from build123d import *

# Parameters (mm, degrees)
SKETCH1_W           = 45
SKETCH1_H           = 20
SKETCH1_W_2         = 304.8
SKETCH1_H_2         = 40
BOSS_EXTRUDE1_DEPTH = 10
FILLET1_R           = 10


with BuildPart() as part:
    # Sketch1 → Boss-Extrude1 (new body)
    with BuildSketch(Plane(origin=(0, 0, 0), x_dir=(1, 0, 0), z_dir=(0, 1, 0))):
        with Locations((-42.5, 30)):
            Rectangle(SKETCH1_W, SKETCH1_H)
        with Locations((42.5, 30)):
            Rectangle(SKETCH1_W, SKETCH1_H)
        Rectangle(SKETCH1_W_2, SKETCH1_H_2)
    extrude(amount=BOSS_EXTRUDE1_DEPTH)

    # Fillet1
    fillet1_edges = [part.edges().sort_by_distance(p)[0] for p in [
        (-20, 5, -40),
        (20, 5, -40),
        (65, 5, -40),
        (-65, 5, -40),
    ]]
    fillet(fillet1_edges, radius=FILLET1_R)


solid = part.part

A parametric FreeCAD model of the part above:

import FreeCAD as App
import Part
import Sketcher
from FreeCAD import Vector


def edges_at(feature, points):
    """Names of the edges that pass closest to the given points."""
    edges = feature.Shape.Edges
    near = lambda p: min(range(len(edges)), key=lambda i: edges[i].distToShape(Part.Vertex(*p))[0])
    return sorted({f"Edge{near(p) + 1}" for p in points})


def add_polygon(sketch, points):
    """Adds a closed chain of lines whose ends are joined by coincident constraints."""
    first, n = sketch.GeometryCount, len(points)
    for a, b in zip(points, points[1:] + points[:1]):
        sketch.addGeometry(Part.LineSegment(App.Vector(*a, 0), App.Vector(*b, 0)), False)
    for i in range(n):
        sketch.addConstraint(Sketcher.Constraint("Coincident", first + i, 2, first + (i + 1) % n, 1))

doc = App.newDocument("Part")
params = doc.addObject("Spreadsheet::Sheet", "Params")
for row, (alias, value) in enumerate([
    ("sketch1_width", "45 mm"),
    ("sketch1_width2", "40 mm"),
    ("sketch1_height", "20 mm"),
    ("sketch1_width3", "87.4 mm"),
    ("pad1_length", "10 mm"),
    ("fillet_radius", "10 mm"),
], start=1):
    params.set(f"A{row}", alias)
    params.set(f"B{row}", "=" + value)
    params.setAlias(f"B{row}", alias)

body = doc.addObject("PartDesign::Body", "Body")

# Sketch on XZ plane
sketch1 = body.newObject("Sketcher::SketchObject", "Sketch")
sketch1.AttachmentSupport = (doc.getObject("XZ_Plane"), [""])
sketch1.MapMode = "FlatFace"
add_polygon(sketch1, [(-65, -40), (-65, -20), (-152, -20), (-152, 20), (152, 20), (152, -20), (65, -20), (65, -40), (20, -40), (20, -20), (-20, -20), (-20, -40)])  # lines 0-11
sketch1.addConstraint(Sketcher.Constraint("Vertical", 0))
sketch1.addConstraint(Sketcher.Constraint("Horizontal", 1))
sketch1.addConstraint(Sketcher.Constraint("Vertical", 2))
sketch1.addConstraint(Sketcher.Constraint("Horizontal", 3))
sketch1.addConstraint(Sketcher.Constraint("Vertical", 4))
sketch1.addConstraint(Sketcher.Constraint("Horizontal", 5))
sketch1.addConstraint(Sketcher.Constraint("Vertical", 6))
sketch1.addConstraint(Sketcher.Constraint("Horizontal", 7))
sketch1.addConstraint(Sketcher.Constraint("Vertical", 8))
sketch1.addConstraint(Sketcher.Constraint("Horizontal", 9))
sketch1.addConstraint(Sketcher.Constraint("Vertical", 10))
sketch1.addConstraint(Sketcher.Constraint("Horizontal", 11))
sketch1.addConstraint(Sketcher.Constraint("Symmetric", 1, 2, 3, 2, -1, 1))
sketch1.addConstraint(Sketcher.Constraint("Symmetric", 0, 2, 5, 2, -2))
sketch1.addConstraint(Sketcher.Constraint("Symmetric", 7, 2, 10, 2, -2))
sketch1.addConstraint(Sketcher.Constraint("Horizontal", 5, 2, 8, 2))
sketch1.addConstraint(Sketcher.Constraint("Equal", 9, 2))
sketch1.addConstraint(Sketcher.Constraint("DistanceX", 7, 2, 7, 1, 45.0))
sketch1.addConstraint(Sketcher.Constraint("DistanceX", 9, 2, 9, 1, 40.0))
sketch1.addConstraint(Sketcher.Constraint("DistanceY", 0, 1, 0, 2, 20.0))
sketch1.addConstraint(Sketcher.Constraint("DistanceX", 1, 2, 1, 1, 87.4))
sketch1.setExpression("Constraints[29]", "Params.sketch1_width")
sketch1.setExpression("Constraints[30]", "Params.sketch1_width2")
sketch1.setExpression("Constraints[31]", "Params.sketch1_height")
sketch1.setExpression("Constraints[32]", "Params.sketch1_width3")
pad1 = body.newObject("PartDesign::Pad", "Pad")
pad1.Profile = sketch1
pad1.setExpression("Length", "Params.pad1_length")
pad1.Reversed = True
doc.recompute()

fillet = body.newObject("PartDesign::Fillet", "Fillet")
fillet.Base = (pad1, edges_at(pad1, [
    (-20, 5, -40),
    (20, 5, -40),
    (65, 5, -40),
    (-65, 5, -40),
]))
fillet.setExpression("Radius", "Params.fillet_radius")

doc.recompute()
